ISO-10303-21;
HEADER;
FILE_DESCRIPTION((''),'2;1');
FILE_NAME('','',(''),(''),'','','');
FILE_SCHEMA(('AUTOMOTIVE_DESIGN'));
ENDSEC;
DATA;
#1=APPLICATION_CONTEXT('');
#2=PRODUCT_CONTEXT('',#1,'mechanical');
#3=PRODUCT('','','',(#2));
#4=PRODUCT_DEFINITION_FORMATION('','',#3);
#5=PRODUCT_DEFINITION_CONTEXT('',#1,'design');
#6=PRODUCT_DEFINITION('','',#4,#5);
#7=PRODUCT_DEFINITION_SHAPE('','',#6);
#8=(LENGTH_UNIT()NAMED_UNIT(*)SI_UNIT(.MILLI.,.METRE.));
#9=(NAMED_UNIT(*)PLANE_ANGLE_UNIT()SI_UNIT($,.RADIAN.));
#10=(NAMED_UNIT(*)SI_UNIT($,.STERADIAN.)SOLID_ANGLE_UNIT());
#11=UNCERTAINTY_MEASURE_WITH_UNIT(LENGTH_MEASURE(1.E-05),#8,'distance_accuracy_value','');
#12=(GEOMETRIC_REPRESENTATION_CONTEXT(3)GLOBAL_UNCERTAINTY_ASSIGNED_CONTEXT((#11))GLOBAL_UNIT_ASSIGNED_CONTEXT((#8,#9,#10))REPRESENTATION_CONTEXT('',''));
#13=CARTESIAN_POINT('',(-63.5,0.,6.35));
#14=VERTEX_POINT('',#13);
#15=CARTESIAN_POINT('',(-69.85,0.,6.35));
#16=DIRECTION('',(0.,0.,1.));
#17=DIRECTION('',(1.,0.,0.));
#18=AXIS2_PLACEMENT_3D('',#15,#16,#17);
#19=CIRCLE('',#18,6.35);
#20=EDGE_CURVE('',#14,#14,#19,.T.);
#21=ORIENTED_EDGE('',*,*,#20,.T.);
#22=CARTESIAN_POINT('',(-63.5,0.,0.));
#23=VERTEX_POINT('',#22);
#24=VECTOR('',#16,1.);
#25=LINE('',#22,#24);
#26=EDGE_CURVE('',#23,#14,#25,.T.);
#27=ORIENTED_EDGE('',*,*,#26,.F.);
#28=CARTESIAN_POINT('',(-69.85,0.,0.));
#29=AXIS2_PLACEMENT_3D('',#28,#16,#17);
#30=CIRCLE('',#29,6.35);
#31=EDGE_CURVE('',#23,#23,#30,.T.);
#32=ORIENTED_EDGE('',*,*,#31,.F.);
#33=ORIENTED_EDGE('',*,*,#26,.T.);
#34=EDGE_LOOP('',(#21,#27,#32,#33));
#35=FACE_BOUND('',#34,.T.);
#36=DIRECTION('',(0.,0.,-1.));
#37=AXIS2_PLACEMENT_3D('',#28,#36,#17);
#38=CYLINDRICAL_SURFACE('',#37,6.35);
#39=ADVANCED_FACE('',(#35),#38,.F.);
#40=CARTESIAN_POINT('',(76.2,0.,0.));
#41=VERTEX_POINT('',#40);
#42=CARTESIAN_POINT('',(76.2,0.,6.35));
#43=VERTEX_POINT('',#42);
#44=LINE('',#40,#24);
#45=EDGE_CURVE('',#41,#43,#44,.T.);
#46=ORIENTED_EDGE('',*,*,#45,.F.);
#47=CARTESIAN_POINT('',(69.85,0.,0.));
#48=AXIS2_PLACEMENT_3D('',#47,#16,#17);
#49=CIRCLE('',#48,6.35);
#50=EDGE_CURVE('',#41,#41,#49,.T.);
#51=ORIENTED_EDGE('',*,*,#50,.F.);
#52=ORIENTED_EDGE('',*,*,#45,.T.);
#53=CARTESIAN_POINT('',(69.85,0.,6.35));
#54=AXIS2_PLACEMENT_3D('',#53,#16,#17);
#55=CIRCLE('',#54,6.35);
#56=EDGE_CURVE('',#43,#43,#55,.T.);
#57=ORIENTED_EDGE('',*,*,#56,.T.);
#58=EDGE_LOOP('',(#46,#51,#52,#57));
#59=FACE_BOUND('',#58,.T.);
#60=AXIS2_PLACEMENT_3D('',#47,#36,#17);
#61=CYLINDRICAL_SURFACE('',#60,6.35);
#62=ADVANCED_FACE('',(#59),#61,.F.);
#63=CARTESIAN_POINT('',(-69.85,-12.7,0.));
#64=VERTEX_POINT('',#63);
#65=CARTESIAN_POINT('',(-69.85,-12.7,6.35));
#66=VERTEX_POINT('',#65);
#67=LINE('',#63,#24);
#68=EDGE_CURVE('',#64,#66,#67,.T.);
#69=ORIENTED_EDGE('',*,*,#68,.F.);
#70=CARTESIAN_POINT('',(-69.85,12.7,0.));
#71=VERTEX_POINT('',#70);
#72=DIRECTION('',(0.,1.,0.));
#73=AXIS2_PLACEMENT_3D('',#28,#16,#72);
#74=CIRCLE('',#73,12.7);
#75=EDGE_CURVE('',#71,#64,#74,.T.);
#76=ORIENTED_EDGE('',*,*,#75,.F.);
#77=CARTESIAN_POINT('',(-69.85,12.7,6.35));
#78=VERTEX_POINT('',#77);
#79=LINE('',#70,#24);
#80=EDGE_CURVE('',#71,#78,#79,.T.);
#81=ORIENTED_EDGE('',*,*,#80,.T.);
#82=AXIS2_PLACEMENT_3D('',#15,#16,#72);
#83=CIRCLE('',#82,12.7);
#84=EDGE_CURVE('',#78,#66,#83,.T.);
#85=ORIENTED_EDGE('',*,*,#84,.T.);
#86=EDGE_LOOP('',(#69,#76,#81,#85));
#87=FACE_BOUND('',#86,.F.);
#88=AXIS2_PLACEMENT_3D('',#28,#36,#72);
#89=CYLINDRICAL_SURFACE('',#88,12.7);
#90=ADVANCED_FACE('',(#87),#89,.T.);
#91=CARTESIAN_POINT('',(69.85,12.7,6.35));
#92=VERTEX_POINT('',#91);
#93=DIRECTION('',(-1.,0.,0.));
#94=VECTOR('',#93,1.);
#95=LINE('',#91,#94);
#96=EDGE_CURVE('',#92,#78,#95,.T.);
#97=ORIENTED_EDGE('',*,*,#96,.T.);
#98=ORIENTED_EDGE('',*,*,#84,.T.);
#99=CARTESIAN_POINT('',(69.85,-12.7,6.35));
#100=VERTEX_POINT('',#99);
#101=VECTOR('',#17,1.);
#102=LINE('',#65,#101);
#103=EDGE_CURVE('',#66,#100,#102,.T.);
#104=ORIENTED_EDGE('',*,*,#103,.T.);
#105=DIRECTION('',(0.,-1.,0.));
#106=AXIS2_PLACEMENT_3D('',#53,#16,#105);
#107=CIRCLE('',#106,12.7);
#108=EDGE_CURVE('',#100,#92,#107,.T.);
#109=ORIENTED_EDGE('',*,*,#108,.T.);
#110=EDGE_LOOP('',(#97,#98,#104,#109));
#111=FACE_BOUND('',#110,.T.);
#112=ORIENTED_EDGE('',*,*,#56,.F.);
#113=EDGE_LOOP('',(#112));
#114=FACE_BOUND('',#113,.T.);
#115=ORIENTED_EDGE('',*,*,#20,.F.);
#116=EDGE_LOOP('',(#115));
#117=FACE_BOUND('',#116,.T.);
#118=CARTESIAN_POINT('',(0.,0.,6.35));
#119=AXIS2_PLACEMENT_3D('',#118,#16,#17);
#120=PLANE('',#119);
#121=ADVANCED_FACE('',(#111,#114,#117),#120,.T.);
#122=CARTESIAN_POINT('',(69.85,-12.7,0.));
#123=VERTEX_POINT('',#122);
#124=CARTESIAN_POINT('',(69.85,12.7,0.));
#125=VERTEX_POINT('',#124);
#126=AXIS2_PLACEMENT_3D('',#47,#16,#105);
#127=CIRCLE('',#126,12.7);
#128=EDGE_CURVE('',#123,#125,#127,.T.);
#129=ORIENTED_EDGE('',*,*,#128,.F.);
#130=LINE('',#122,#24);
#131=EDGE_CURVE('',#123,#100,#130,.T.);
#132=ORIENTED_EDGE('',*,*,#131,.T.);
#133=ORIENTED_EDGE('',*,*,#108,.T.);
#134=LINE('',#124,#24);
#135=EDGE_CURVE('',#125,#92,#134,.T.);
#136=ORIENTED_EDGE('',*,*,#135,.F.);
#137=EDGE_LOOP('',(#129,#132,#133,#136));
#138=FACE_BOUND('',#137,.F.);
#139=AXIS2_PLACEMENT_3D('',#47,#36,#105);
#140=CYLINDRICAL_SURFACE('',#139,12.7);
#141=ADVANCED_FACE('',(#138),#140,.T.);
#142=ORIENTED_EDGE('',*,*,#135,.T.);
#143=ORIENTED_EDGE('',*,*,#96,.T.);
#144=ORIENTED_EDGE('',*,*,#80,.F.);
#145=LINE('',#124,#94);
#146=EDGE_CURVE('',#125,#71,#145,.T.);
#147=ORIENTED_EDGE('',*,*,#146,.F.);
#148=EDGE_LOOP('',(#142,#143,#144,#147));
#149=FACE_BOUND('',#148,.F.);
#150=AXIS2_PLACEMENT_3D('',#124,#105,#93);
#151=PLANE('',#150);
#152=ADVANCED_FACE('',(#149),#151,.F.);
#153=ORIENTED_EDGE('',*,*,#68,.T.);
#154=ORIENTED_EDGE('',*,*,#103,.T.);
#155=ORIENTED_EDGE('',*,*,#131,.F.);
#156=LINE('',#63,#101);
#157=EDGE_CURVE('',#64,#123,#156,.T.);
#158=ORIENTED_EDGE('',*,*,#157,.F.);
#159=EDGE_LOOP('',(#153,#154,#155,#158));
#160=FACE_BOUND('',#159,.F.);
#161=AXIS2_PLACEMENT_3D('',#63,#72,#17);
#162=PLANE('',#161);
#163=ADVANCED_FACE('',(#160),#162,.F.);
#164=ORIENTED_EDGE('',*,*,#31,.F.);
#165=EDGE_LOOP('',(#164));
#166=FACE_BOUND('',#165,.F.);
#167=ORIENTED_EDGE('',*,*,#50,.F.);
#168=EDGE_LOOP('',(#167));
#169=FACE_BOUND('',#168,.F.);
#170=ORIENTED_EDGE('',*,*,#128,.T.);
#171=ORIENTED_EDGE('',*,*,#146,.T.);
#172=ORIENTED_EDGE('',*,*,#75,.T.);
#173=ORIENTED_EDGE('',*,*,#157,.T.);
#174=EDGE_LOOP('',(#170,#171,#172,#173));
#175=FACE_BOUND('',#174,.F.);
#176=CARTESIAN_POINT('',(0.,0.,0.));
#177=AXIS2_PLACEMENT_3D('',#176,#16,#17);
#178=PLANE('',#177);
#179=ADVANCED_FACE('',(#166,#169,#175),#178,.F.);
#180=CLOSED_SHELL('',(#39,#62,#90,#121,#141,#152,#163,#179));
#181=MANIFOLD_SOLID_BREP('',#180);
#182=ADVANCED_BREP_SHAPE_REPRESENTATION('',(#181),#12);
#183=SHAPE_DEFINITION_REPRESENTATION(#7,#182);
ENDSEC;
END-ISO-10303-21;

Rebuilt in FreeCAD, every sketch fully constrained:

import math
import FreeCAD as App
import Part
import Sketcher
Q = App.Units.Quantity

doc = App.newDocument("Part")
body = doc.addObject("PartDesign::Body", "Body")

sketch1 = body.newObject("Sketcher::SketchObject", "Sketch")
sketch1.AttachmentSupport = (doc.getObject("XY_Plane"), [""])
sketch1.MapMode = "FlatFace"
sketch1.addGeometry(Part.ArcOfCircle(Part.Circle(App.Vector(-69.85, 0, 0), App.Vector(0, 0, 1), 12.7), math.radians(90), math.radians(270)), False)
sketch1.addGeometry(Part.LineSegment(App.Vector(-69.85, -12.7, 0), App.Vector(69.85, -12.7, 0)), False)
sketch1.addGeometry(Part.ArcOfCircle(Part.Circle(App.Vector(69.85, 0, 0), App.Vector(0, 0, 1), 12.7), math.radians(-90), math.radians(90)), False)
sketch1.addGeometry(Part.LineSegment(App.Vector(69.85, 12.7, 0), App.Vector(-69.85, 12.7, 0)), False)
sketch1.addGeometry(Part.Circle(App.Vector(-69.85, 0, 0), App.Vector(0, 0, 1), 6.35), False)
sketch1.addGeometry(Part.Circle(App.Vector(69.85, 0, 0), App.Vector(0, 0, 1), 6.35), False)
sketch1.addConstraint(Sketcher.Constraint("Tangent", 0, 2, 1, 1))
sketch1.addConstraint(Sketcher.Constraint("Tangent", 1, 2, 2, 1))
sketch1.addConstraint(Sketcher.Constraint("Tangent", 2, 2, 3, 1))
sketch1.addConstraint(Sketcher.Constraint("Tangent", 3, 2, 0, 1))
sketch1.addConstraint(Sketcher.Constraint("Horizontal", 1))
sketch1.addConstraint(Sketcher.Constraint("Horizontal", 3))
sketch1.addConstraint(Sketcher.Constraint("Coincident", 4, 3, 0, 3))
sketch1.addConstraint(Sketcher.Constraint("Coincident", 5, 3, 2, 3))
sketch1.addConstraint(Sketcher.Constraint("Equal", 4, 5))
sketch1.addConstraint(Sketcher.Constraint("Symmetric", 0, 3, 2, 3, -1, 1))
sketch1.addConstraint(Sketcher.Constraint("Diameter", 4, Q("0.5 in")))
sketch1.addConstraint(Sketcher.Constraint("Radius", 0, Q("0.5 in")))
sketch1.addConstraint(Sketcher.Constraint("DistanceX", 0, 3, -1, 1, Q("2.75 in")))
pad1 = body.newObject("PartDesign::Pad", "Pad")
pad1.Profile = sketch1
pad1.Length = Q("0.25 in")

doc.recompute()
